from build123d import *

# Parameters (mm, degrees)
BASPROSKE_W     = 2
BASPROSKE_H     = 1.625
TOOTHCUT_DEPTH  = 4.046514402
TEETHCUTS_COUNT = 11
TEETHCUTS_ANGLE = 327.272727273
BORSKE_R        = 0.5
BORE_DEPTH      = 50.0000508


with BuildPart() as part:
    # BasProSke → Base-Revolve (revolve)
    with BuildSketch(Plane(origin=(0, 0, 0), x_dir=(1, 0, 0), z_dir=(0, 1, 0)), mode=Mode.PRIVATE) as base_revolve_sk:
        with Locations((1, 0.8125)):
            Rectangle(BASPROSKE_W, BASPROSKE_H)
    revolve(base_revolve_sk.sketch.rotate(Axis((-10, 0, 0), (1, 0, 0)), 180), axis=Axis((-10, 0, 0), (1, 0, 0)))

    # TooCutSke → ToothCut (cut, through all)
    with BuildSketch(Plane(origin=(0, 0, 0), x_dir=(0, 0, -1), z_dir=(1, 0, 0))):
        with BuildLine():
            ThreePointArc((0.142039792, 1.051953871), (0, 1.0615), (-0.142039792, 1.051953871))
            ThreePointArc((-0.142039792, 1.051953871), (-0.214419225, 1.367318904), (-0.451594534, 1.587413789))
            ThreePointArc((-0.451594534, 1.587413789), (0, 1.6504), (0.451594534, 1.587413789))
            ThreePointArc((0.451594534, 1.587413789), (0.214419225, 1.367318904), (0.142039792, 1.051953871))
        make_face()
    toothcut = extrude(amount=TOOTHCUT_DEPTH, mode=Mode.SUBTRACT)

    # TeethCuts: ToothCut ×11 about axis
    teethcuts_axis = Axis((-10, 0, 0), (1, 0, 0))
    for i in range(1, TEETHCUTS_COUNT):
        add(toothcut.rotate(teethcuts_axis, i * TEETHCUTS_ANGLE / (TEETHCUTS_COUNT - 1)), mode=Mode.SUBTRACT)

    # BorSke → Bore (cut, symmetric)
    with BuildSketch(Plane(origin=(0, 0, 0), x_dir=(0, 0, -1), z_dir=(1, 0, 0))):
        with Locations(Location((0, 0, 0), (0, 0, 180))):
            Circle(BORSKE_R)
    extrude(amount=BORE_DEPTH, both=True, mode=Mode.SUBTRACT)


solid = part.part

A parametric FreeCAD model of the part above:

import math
import FreeCAD as App
import Part
import Sketcher
from FreeCAD import Vector
Q = App.Units.Quantity


def add_polygon(sketch, points):
    """Adds a closed chain of lines whose ends are joined by coincident constraints."""
    first, n = sketch.GeometryCount, len(points)
    for a, b in zip(points, points[1:] + points[:1]):
        sketch.addGeometry(Part.LineSegment(App.Vector(*a, 0), App.Vector(*b, 0)), False)
    for i in range(n):
        sketch.addConstraint(Sketcher.Constraint("Coincident", first + i, 2, first + (i + 1) % n, 1))

doc = App.newDocument("Part")
body = doc.addObject("PartDesign::Body", "Body")

# Sketch on XZ plane
sketch1 = body.newObject("Sketcher::SketchObject", "Sketch")
sketch1.AttachmentSupport = (doc.getObject("XZ_Plane"), [""])
sketch1.MapMode = "FlatFace"
add_polygon(sketch1, [(0, -1.6), (0, 0), (2, 0), (2, -1.6)])  # lines 0-3
sketch1.addConstraint(Sketcher.Constraint("Vertical", 0))
sketch1.addConstraint(Sketcher.Constraint("Horizontal", 1))
sketch1.addConstraint(Sketcher.Constraint("Vertical", 2))
sketch1.addConstraint(Sketcher.Constraint("Horizontal", 3))
sketch1.addConstraint(Sketcher.Constraint("Coincident", 0, 2, -1, 1))
sketch1.addConstraint(Sketcher.Constraint("DistanceX", 1, 1, 1, 2, Q("2 mm")))
sketch1.addConstraint(Sketcher.Constraint("DistanceY", 0, 1, 0, 2, Q("1.625 mm")))
revolution = body.newObject("PartDesign::Revolution", "Revolution")
revolution.Profile = sketch1
revolution.ReferenceAxis = (sketch1, ["H_Axis"])
revolution.Angle = 360

# Sketch on YZ plane
sketch2 = body.newObject("Sketcher::SketchObject", "Sketch001")
sketch2.AttachmentSupport = (doc.getObject("YZ_Plane"), [""])
sketch2.MapMode = "FlatFace"
sketch2.addGeometry(Part.ArcOfCircle(Part.Circle(Vector(0, 0, 0), Vector(0, 0, 1), 1.06), math.radians(-7.69), math.radians(7.69)), False)
sketch2.addGeometry(Part.ArcOfCircle(Part.Circle(Vector(1.09, -0.69, 0), Vector(0, 0, 1), 0.55), math.radians(26), math.radians(94)), False)
sketch2.addGeometry(Part.ArcOfCircle(Part.Circle(Vector(0, 0, 0), Vector(0, 0, 1), 1.65), math.radians(-16), math.radians(16)), False)
sketch2.addGeometry(Part.ArcOfCircle(Part.Circle(Vector(1.09, 0.69, 0), Vector(0, 0, 1), 0.55), math.radians(-94), math.radians(-26)), False)
sketch2.addConstraint(Sketcher.Constraint("Coincident", 0, 1, 1, 2))
sketch2.addConstraint(Sketcher.Constraint("Coincident", 1, 1, 2, 1))
sketch2.addConstraint(Sketcher.Constraint("Coincident", 2, 2, 3, 2))
sketch2.addConstraint(Sketcher.Constraint("Coincident", 3, 1, 0, 2))
sketch2.addConstraint(Sketcher.Constraint("Coincident", 0, 3, -1, 1))
sketch2.addConstraint(Sketcher.Constraint("Coincident", 2, 3, -1, 1))
sketch2.addConstraint(Sketcher.Constraint("Equal", 1, 3))
sketch2.addConstraint(Sketcher.Constraint("Symmetric", 1, 3, 3, 3, -1))
sketch2.addConstraint(Sketcher.Constraint("Radius", 1, Q("0.55 mm")))
sketch2.addConstraint(Sketcher.Constraint("Radius", 0, Q("1.0615 mm")))
sketch2.addConstraint(Sketcher.Constraint("Radius", 2, Q("1.6504 mm")))
sketch2.addConstraint(Sketcher.Constraint("DistanceY", 0, 1, -1, 1, Q("0.14204 mm")))
sketch2.addConstraint(Sketcher.Constraint("DistanceY", 1, 3, 1, 1, Q("0.238982 mm")))
pocket1 = body.newObject("PartDesign::Pocket", "Pocket")
pocket1.Profile = sketch2
pocket1.Type = "ThroughAll"
pocket1.Reversed = True
doc.recompute()

polarpattern = body.newObject("PartDesign::PolarPattern", "PolarPattern")
polarpattern.Originals = [pocket1]
polarpattern.Axis = (doc.getObject("X_Axis"), [""])
polarpattern.Angle = 360
polarpattern.Occurrences = 11
body.Tip = polarpattern

# Sketch on YZ plane
sketch3 = body.newObject("Sketcher::SketchObject", "Sketch002")
sketch3.AttachmentSupport = (doc.getObject("YZ_Plane"), [""])
sketch3.MapMode = "FlatFace"
sketch3.addGeometry(Part.Circle(Vector(0, 0, 0), Vector(0, 0, 1), 0.5), False)
sketch3.addConstraint(Sketcher.Constraint("Coincident", 0, 3, -1, 1))
sketch3.addConstraint(Sketcher.Constraint("Diameter", 0, Q("1 mm")))
pocket2 = body.newObject("PartDesign::Pocket", "Pocket001")
pocket2.Profile = sketch3
pocket2.Length = 100.000102
pocket2.Midplane = True

doc.recompute()
